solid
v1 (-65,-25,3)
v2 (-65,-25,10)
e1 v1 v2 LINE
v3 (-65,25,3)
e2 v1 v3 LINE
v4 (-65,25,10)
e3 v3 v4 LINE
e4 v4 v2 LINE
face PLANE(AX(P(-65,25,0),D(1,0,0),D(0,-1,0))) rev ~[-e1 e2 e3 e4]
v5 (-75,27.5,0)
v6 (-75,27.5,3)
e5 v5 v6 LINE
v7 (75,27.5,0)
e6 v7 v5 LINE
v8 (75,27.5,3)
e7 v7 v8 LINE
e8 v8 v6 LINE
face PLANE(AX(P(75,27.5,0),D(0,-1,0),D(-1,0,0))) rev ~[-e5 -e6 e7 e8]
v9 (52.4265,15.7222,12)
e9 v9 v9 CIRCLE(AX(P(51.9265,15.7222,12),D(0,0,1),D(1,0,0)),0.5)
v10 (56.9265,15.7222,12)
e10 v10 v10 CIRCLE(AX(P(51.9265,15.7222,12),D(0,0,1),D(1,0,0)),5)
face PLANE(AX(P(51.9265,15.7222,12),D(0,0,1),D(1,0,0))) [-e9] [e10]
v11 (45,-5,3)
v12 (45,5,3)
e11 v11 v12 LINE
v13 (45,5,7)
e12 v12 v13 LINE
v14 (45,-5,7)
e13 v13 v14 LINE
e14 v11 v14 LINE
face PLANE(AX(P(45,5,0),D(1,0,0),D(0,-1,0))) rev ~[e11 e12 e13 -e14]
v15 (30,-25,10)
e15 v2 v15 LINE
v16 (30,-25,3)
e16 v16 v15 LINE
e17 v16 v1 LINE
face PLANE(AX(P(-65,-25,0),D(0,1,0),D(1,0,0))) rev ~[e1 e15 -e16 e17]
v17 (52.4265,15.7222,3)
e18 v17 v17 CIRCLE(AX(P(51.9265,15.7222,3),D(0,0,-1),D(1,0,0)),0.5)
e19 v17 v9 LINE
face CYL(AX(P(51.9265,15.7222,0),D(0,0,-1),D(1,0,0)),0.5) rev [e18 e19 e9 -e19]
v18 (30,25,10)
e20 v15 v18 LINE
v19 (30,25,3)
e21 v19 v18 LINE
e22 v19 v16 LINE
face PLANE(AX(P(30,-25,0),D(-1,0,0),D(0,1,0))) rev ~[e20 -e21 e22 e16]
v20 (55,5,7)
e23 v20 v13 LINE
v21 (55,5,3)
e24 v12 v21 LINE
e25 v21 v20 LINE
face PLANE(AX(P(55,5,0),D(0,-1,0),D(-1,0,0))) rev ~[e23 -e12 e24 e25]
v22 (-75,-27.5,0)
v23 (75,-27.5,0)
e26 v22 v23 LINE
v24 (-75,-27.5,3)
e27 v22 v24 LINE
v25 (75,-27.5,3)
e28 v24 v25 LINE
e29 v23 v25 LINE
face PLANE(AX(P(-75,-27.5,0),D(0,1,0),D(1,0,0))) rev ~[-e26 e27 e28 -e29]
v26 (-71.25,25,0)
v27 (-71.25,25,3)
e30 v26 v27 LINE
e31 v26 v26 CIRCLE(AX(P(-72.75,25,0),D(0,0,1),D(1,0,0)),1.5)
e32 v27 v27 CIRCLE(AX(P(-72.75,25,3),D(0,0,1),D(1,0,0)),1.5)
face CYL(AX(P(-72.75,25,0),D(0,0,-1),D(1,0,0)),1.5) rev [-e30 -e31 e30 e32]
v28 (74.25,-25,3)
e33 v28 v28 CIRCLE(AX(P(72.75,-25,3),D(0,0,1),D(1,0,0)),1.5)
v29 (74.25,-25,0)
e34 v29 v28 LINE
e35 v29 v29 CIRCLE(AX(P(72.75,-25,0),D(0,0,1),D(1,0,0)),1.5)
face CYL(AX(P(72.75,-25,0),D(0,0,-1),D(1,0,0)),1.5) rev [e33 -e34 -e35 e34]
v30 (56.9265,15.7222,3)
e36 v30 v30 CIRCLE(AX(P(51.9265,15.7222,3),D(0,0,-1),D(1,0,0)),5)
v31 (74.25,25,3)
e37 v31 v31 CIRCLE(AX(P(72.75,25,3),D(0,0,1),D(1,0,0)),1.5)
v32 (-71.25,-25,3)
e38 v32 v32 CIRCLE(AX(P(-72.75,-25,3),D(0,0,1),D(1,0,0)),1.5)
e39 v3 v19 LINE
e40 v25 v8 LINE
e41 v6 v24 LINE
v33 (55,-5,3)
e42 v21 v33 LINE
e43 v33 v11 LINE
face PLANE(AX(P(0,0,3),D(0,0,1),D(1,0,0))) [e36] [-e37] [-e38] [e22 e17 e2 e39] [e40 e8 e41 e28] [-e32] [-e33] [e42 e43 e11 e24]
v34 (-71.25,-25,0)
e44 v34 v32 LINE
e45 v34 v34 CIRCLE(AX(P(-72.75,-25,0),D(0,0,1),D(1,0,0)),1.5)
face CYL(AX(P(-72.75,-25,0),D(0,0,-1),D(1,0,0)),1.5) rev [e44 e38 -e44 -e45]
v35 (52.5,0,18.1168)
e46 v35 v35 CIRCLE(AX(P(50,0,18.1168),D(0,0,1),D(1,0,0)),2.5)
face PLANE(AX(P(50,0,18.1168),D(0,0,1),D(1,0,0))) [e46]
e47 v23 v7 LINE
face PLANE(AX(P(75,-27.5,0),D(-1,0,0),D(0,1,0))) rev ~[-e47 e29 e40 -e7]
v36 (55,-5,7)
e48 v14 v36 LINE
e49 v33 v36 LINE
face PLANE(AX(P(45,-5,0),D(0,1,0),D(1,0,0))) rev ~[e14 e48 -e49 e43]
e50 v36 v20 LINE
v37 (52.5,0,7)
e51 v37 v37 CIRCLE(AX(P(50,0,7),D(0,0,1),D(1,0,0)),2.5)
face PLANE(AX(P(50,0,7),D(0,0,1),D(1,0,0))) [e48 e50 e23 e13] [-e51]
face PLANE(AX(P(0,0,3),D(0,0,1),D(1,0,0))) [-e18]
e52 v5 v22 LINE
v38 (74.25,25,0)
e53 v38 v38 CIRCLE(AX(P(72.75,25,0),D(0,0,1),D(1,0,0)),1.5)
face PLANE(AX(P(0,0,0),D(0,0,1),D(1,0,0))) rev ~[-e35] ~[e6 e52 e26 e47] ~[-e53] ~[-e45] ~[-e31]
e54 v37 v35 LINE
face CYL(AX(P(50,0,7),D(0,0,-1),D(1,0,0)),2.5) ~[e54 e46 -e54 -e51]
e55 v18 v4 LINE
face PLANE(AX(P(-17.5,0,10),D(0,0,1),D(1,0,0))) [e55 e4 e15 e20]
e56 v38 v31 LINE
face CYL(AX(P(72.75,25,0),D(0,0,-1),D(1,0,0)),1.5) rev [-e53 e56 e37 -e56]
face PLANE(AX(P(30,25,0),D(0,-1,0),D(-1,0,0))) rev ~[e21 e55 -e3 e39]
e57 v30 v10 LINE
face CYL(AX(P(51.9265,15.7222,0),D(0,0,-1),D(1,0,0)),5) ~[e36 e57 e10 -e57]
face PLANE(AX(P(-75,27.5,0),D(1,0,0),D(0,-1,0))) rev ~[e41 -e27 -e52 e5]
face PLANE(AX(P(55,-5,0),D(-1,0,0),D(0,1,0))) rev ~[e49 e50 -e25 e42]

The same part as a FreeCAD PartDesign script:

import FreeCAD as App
import Part
import Sketcher


def add_polygon(sketch, points):
    """Adds a closed chain of lines whose ends are joined by coincident constraints."""
    first, n = sketch.GeometryCount, len(points)
    for a, b in zip(points, points[1:] + points[:1]):
        sketch.addGeometry(Part.LineSegment(App.Vector(*a, 0), App.Vector(*b, 0)), False)
    for i in range(n):
        sketch.addConstraint(Sketcher.Constraint("Coincident", first + i, 2, first + (i + 1) % n, 1))

doc = App.newDocument("Part")
body = doc.addObject("PartDesign::Body", "Body")

# Sketch on XY plane
sketch1 = doc.addObject("Sketcher::SketchObject", "Sketch")
body.addObject(sketch1)
sketch1.AttachmentSupport = (doc.XY_Plane, [""])
sketch1.MapMode = "FlatFace"
add_polygon(sketch1, [(-75, 27.5), (-75, -27.5), (75, -27.5), (75, 27.5)])  # lines 0-3
sketch1.addGeometry(Part.Circle(App.Vector(-72.8, -25, 0), App.Vector(0, 0, 1), 1.5), False)  # 4
sketch1.addGeometry(Part.Circle(App.Vector(72.8, -25, 0), App.Vector(0, 0, 1), 1.5), False)  # 5
sketch1.addGeometry(Part.Circle(App.Vector(-72.8, 25, 0), App.Vector(0, 0, 1), 1.5), False)  # 6
sketch1.addGeometry(Part.Circle(App.Vector(72.8, 25, 0), App.Vector(0, 0, 1), 1.5), False)  # 7
sketch1.addConstraint(Sketcher.Constraint("Vertical", 0))
sketch1.addConstraint(Sketcher.Constraint("Horizontal", 1))
sketch1.addConstraint(Sketcher.Constraint("Vertical", 2))
sketch1.addConstraint(Sketcher.Constraint("Horizontal", 3))
sketch1.addConstraint(Sketcher.Constraint("Equal", 4, 5))
sketch1.addConstraint(Sketcher.Constraint("Equal", 5, 6))
sketch1.addConstraint(Sketcher.Constraint("Equal", 6, 7))
sketch1.addConstraint(Sketcher.Constraint("Symmetric", 5, 3, 6, 3, -1, 1))
sketch1.addConstraint(Sketcher.Constraint("Symmetric", 4, 3, 7, 3, -1, 1))
sketch1.addConstraint(Sketcher.Constraint("Symmetric", 0, 2, 2, 2, -1, 1))
sketch1.addConstraint(Sketcher.Constraint("Symmetric", 4, 3, 5, 3, -2))
sketch1.addConstraint(Sketcher.Constraint("Diameter", 4, 3.0))
sketch1.addConstraint(Sketcher.Constraint("DistanceX", 0, 2, -1, 1, 75.0))
sketch1.addConstraint(Sketcher.Constraint("DistanceY", 0, 2, 0, 1, 55.0))
sketch1.addConstraint(Sketcher.Constraint("DistanceX", 4, 3, -1, 1, 72.75))
sketch1.addConstraint(Sketcher.Constraint("DistanceY", 4, 3, -1, 1, 25.0))
pad1 = doc.addObject("PartDesign::Pad", "Pad")
body.addObject(pad1)
pad1.Profile = sketch1
pad1.Length = 3

# Sketch on XY plane
sketch2 = doc.addObject("Sketcher::SketchObject", "Sketch001")
body.addObject(sketch2)
sketch2.AttachmentSupport = (doc.XY_Plane, [""])
sketch2.MapMode = "FlatFace"
add_polygon(sketch2, [(-65, 25), (-65, -25), (30, -25), (30, 25)])  # lines 0-3
sketch2.addConstraint(Sketcher.Constraint("Vertical", 0))
sketch2.addConstraint(Sketcher.Constraint("Horizontal", 1))
sketch2.addConstraint(Sketcher.Constraint("Vertical", 2))
sketch2.addConstraint(Sketcher.Constraint("Horizontal", 3))
sketch2.addConstraint(Sketcher.Constraint("DistanceX", 1, 1, 1, 2, 95.0))
sketch2.addConstraint(Sketcher.Constraint("DistanceY", 0, 2, 0, 1, 50.0))
sketch2.addConstraint(Sketcher.Constraint("DistanceX", 0, 2, -1, 1, 65.0))
sketch2.addConstraint(Sketcher.Constraint("DistanceY", 0, 2, -1, 1, 25.0))
pad2 = doc.addObject("PartDesign::Pad", "Pad001")
body.addObject(pad2)
pad2.Profile = sketch2
pad2.Length = 10

# Sketch on XY plane
sketch3 = doc.addObject("Sketcher::SketchObject", "Sketch002")
body.addObject(sketch3)
sketch3.AttachmentSupport = (doc.XY_Plane, [""])
sketch3.MapMode = "FlatFace"
sketch3.addGeometry(Part.Circle(App.Vector(51.9, 15.7, 0), App.Vector(0, 0, 1), 5), False)
sketch3.addGeometry(Part.Circle(App.Vector(51.9, 15.7, 0), App.Vector(0, 0, 1), 0.5), False)
sketch3.addConstraint(Sketcher.Constraint("Coincident", 1, 3, 0, 3))
sketch3.addConstraint(Sketcher.Constraint("Diameter", 0, 10.0))
sketch3.addConstraint(Sketcher.Constraint("Diameter", 1, 1.0))
sketch3.addConstraint(Sketcher.Constraint("DistanceX", -1, 1, 0, 3, 51.9265))
sketch3.addConstraint(Sketcher.Constraint("DistanceY", -1, 1, 0, 3, 15.7222))
pad3 = doc.addObject("PartDesign::Pad", "Pad002")
body.addObject(pad3)
pad3.Profile = sketch3
pad3.Length = 12

# Sketch on XY plane
sketch4 = doc.addObject("Sketcher::SketchObject", "Sketch003")
body.addObject(sketch4)
sketch4.AttachmentSupport = (doc.XY_Plane, [""])
sketch4.MapMode = "FlatFace"
add_polygon(sketch4, [(45, 5), (45, -5), (55, -5), (55, 5)])  # lines 0-3
sketch4.addConstraint(Sketcher.Constraint("Vertical", 0))
sketch4.addConstraint(Sketcher.Constraint("Horizontal", 1))
sketch4.addConstraint(Sketcher.Constraint("Vertical", 2))
sketch4.addConstraint(Sketcher.Constraint("Horizontal", 3))
sketch4.addConstraint(Sketcher.Constraint("Equal", 3, 0))
sketch4.addConstraint(Sketcher.Constraint("DistanceX", -1, 1, 0, 2, 45.0))
sketch4.addConstraint(Sketcher.Constraint("DistanceX", 1, 1, 1, 2, 10.0))
sketch4.addConstraint(Sketcher.Constraint("DistanceY", 0, 2, -1, 1, 5.0))
pad4 = doc.addObject("PartDesign::Pad", "Pad003")
body.addObject(pad4)
pad4.Profile = sketch4
pad4.Length = 7

# Sketch on XY plane
sketch5 = doc.addObject("Sketcher::SketchObject", "Sketch004")
body.addObject(sketch5)
sketch5.AttachmentSupport = (doc.XY_Plane, [""])
sketch5.MapMode = "FlatFace"
sketch5.AttachmentOffset = App.Placement(App.Vector(0, 0, 7), App.Rotation())
sketch5.addGeometry(Part.Circle(App.Vector(50, 0, 0), App.Vector(0, 0, 1), 2.5), False)
sketch5.addConstraint(Sketcher.Constraint("PointOnObject", 0, 3, -1))
sketch5.addConstraint(Sketcher.Constraint("Diameter", 0, 5.0))
sketch5.addConstraint(Sketcher.Constraint("DistanceX", -1, 1, 0, 3, 50.0))
pad5 = doc.addObject("PartDesign::Pad", "Pad004")
body.addObject(pad5)
pad5.Profile = sketch5
pad5.Length = 11.1168

doc.recompute()
